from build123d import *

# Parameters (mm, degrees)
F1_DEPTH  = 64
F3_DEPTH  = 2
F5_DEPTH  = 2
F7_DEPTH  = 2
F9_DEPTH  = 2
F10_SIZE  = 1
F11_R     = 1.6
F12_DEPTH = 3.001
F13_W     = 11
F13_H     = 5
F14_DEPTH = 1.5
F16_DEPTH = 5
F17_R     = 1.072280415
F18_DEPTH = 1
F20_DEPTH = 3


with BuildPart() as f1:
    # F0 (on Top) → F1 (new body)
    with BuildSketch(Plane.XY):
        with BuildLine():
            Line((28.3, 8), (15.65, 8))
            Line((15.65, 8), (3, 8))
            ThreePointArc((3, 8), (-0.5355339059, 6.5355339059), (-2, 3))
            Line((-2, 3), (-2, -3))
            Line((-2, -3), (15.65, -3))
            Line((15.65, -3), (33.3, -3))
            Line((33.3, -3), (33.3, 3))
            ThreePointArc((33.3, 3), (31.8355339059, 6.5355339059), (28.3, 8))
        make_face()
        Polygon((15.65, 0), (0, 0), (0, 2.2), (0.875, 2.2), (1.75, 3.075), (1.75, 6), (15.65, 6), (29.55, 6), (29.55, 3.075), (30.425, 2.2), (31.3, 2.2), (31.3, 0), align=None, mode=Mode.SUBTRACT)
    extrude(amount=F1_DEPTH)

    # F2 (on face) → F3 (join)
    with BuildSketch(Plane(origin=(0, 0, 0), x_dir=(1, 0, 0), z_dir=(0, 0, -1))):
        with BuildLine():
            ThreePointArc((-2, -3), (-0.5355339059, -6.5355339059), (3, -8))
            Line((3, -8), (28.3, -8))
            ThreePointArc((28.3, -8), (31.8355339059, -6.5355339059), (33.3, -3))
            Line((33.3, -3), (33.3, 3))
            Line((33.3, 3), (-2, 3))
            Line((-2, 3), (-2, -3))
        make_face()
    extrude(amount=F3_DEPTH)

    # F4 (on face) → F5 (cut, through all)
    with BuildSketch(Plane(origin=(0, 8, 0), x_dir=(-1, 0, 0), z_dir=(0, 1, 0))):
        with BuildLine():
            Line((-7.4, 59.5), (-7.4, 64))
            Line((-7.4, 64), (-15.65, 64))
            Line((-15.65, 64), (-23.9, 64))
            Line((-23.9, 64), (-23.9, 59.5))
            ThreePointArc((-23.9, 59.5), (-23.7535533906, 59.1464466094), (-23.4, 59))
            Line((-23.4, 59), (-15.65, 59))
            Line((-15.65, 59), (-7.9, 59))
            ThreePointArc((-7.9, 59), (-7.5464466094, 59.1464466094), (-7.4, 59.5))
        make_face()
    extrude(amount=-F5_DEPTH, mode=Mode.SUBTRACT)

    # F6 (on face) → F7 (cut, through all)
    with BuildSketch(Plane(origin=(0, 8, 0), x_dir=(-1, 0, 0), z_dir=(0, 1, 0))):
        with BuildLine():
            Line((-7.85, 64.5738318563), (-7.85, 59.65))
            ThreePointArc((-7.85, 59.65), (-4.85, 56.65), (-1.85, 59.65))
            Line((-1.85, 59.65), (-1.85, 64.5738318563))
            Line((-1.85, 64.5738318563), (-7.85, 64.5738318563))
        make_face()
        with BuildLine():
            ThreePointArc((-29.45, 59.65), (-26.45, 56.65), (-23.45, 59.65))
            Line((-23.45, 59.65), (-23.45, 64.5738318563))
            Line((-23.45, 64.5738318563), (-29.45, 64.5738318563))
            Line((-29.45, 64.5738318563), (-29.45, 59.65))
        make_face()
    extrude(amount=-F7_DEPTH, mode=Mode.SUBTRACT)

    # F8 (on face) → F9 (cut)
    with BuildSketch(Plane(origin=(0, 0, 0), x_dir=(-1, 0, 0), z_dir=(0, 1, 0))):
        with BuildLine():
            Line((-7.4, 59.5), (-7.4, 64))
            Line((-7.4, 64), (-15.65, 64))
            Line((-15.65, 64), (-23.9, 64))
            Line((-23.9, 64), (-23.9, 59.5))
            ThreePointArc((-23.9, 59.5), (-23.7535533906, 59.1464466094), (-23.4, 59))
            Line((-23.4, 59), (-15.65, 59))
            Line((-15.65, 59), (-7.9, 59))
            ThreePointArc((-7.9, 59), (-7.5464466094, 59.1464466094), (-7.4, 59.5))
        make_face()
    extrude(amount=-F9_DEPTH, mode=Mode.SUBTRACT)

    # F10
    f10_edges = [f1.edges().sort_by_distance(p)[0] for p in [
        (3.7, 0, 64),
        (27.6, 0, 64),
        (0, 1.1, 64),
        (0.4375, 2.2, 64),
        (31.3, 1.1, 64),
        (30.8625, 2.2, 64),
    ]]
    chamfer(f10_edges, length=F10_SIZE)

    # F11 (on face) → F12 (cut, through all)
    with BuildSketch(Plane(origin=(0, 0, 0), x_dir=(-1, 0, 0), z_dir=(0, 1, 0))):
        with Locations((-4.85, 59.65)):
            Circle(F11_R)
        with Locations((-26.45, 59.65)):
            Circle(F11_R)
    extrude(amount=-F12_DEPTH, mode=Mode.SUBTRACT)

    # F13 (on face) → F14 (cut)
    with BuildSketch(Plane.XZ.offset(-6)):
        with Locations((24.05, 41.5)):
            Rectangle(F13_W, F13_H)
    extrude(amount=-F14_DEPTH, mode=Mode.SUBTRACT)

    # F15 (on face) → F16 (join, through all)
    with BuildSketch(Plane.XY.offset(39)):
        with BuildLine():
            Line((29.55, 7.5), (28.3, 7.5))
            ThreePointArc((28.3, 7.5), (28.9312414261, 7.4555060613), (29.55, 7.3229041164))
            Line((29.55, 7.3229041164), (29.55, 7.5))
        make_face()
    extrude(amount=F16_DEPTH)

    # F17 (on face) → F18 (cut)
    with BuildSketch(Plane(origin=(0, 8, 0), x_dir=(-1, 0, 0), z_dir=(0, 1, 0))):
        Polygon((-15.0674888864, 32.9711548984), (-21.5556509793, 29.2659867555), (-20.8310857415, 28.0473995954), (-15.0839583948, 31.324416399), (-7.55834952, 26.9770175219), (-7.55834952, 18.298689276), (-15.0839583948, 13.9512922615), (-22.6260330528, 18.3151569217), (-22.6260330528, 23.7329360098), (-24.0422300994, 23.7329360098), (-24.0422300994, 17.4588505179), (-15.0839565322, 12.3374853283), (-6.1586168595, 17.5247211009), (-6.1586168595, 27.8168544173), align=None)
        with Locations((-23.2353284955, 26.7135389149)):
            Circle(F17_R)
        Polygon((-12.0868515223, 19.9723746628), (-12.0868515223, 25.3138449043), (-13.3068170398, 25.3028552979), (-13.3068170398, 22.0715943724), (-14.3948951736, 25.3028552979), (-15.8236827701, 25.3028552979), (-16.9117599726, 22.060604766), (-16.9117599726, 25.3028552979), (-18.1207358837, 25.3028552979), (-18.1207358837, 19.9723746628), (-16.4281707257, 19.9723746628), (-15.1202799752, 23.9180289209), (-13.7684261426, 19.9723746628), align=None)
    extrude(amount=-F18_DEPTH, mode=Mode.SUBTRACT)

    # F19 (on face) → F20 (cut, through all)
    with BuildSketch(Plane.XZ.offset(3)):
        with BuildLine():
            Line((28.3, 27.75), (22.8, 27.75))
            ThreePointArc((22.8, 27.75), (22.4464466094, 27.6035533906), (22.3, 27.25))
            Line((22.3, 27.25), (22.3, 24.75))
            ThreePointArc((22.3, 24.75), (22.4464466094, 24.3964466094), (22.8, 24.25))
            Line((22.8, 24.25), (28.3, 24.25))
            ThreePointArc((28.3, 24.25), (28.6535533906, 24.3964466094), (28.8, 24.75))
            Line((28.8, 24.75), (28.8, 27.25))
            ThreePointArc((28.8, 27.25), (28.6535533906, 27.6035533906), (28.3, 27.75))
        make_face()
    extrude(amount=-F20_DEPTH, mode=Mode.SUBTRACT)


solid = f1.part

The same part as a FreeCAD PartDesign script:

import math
import FreeCAD as App
import Part
import Sketcher

V = App.Vector


def edges_at(feature, points):
    """Names of the edges that pass closest to the given points."""
    edges = feature.Shape.Edges
    near = lambda p: min(range(len(edges)), key=lambda i: edges[i].distToShape(Part.Vertex(*p))[0])
    return sorted({f"Edge{near(p) + 1}" for p in points})

doc = App.newDocument("Part")
body = doc.addObject("PartDesign::Body", "Body")

# Sketch on XY plane
sketch1 = body.newObject("Sketcher::SketchObject", "Sketch")
sketch1.AttachmentSupport = (doc.getObject("XY_Plane"), [""])
sketch1.MapMode = "FlatFace"
sketch1.addGeometry([
    Part.LineSegment(V(28.3, 8, 0), V(3, 8, 0)),  # 0
    Part.ArcOfCircle(Part.Circle(V(3, 3, 0), V(0, 0, 1), 5), math.radians(90), math.radians(180)),  # 1
    Part.LineSegment(V(-2, 3, 0), V(-2, -3, 0)),  # 2
    Part.LineSegment(V(-2, -3, 0), V(33.3, -3, 0)),  # 3
    Part.LineSegment(V(33.3, -3, 0), V(33.3, 3, 0)),  # 4
    Part.ArcOfCircle(Part.Circle(V(28.3, 3, 0), V(0, 0, 1), 5), math.radians(0), math.radians(90)),  # 5
    Part.LineSegment(V(31.3, 0, 0), V(0, 0, 0)),  # 6
    Part.LineSegment(V(0, 0, 0), V(0, 2.2, 0)),  # 7
    Part.LineSegment(V(0, 2.2, 0), V(0.9, 2.2, 0)),  # 8
    Part.LineSegment(V(0.9, 2.2, 0), V(1.8, 3.1, 0)),  # 9
    Part.LineSegment(V(1.8, 3.1, 0), V(1.8, 6, 0)),  # 10
    Part.LineSegment(V(1.8, 6, 0), V(29.6, 6, 0)),  # 11
    Part.LineSegment(V(29.6, 6, 0), V(29.6, 3.1, 0)),  # 12
    Part.LineSegment(V(29.6, 3.1, 0), V(30.4, 2.2, 0)),  # 13
    Part.LineSegment(V(30.4, 2.2, 0), V(31.3, 2.2, 0)),  # 14
    Part.LineSegment(V(31.3, 2.2, 0), V(31.3, 0, 0)),  # 15
], False)
sketch1.addConstraint([
    Sketcher.Constraint("Tangent", 0, 2, 1, 1),
    Sketcher.Constraint("Tangent", 1, 2, 2, 1),
    Sketcher.Constraint("Coincident", 2, 2, 3, 1),
    Sketcher.Constraint("Coincident", 3, 2, 4, 1),
    Sketcher.Constraint("Tangent", 4, 2, 5, 1),
    Sketcher.Constraint("Tangent", 5, 2, 0, 1),
    Sketcher.Constraint("Coincident", 6, 2, 7, 1),
    Sketcher.Constraint("Coincident", 7, 2, 8, 1),
    Sketcher.Constraint("Coincident", 8, 2, 9, 1),
    Sketcher.Constraint("Coincident", 9, 2, 10, 1),
    Sketcher.Constraint("Coincident", 10, 2, 11, 1),
    Sketcher.Constraint("Coincident", 11, 2, 12, 1),
    Sketcher.Constraint("Coincident", 12, 2, 13, 1),
    Sketcher.Constraint("Coincident", 13, 2, 14, 1),
    Sketcher.Constraint("Coincident", 14, 2, 15, 1),
    Sketcher.Constraint("Coincident", 15, 2, 6, 1),
    Sketcher.Constraint("Horizontal", 0),
    Sketcher.Constraint("Vertical", 2),
    Sketcher.Constraint("Horizontal", 3),
    Sketcher.Constraint("Vertical", 4),
    Sketcher.Constraint("Horizontal", 6),
    Sketcher.Constraint("Vertical", 7),
    Sketcher.Constraint("Horizontal", 8),
    Sketcher.Constraint("Vertical", 10),
    Sketcher.Constraint("Horizontal", 11),
    Sketcher.Constraint("Vertical", 12),
    Sketcher.Constraint("Horizontal", 14),
    Sketcher.Constraint("Vertical", 15),
    Sketcher.Constraint("Coincident", 6, 2, -1, 1),
    Sketcher.Constraint("Equal", 1, 5),
    Sketcher.Constraint("Perpendicular", 9, 13),
    Sketcher.Constraint("Horizontal", 9, 2, 12, 2),
    Sketcher.Constraint("Horizontal", 8, 2, 13, 2),
    Sketcher.Constraint("Equal", 8, 14),
    Sketcher.Constraint("Equal", 9, 13),
    Sketcher.Constraint("Radius", 1, 5.0),
    Sketcher.Constraint("DistanceY", 2, 2, 2, 1, 6.0),
    Sketcher.Constraint("DistanceX", 0, 2, 0, 1, 25.3),
    Sketcher.Constraint("DistanceX", 6, 2, 6, 1, 31.3),
    Sketcher.Constraint("DistanceX", 11, 1, 11, 2, 27.8),
    Sketcher.Constraint("DistanceY", 7, 1, 7, 2, 2.2),
    Sketcher.Constraint("DistanceX", -1, 1, 1, 3, 3.0),
    Sketcher.Constraint("DistanceY", -1, 1, 1, 3, 3.0),
    Sketcher.Constraint("DistanceY", -1, 1, 10, 2, 6.0),
    Sketcher.Constraint("DistanceX", 8, 1, 8, 2, 0.875),
])
pad1 = body.newObject("PartDesign::Pad", "Pad")
pad1.Profile = sketch1
pad1.Length = 64

# Sketch on XY plane
sketch2 = body.newObject("Sketcher::SketchObject", "Sketch001")
sketch2.AttachmentSupport = (doc.getObject("XY_Plane"), [""])
sketch2.MapMode = "FlatFace"
sketch2.addGeometry([
    Part.ArcOfCircle(Part.Circle(V(3, 3, 0), V(0, 0, 1), 5), math.radians(90), math.radians(180)),  # 0
    Part.LineSegment(V(3, 8, 0), V(28, 8, 0)),  # 1
    Part.ArcOfCircle(Part.Circle(V(28, 3, 0), V(0, 0, 1), 5), math.radians(0), math.radians(90)),  # 2
    Part.LineSegment(V(33, 3, 0), V(33, -3, 0)),  # 3
    Part.LineSegment(V(33, -3, 0), V(-2, -3, 0)),  # 4
    Part.LineSegment(V(-2, -3, 0), V(-2, 3, 0)),  # 5
], False)
sketch2.addConstraint([
    Sketcher.Constraint("Tangent", 0, 1, 1, 1),
    Sketcher.Constraint("Tangent", 1, 2, 2, 2),
    Sketcher.Constraint("Tangent", 2, 1, 3, 1),
    Sketcher.Constraint("Coincident", 3, 2, 4, 1),
    Sketcher.Constraint("Coincident", 4, 2, 5, 1),
    Sketcher.Constraint("Tangent", 5, 2, 0, 2),
    Sketcher.Constraint("Horizontal", 1),
    Sketcher.Constraint("Vertical", 3),
    Sketcher.Constraint("Horizontal", 4),
    Sketcher.Constraint("Vertical", 5),
    Sketcher.Constraint("Equal", 0, 2),
    Sketcher.Constraint("Radius", 0, 5.0),
    Sketcher.Constraint("DistanceY", 3, 2, 3, 1, 6.0),
    Sketcher.Constraint("DistanceX", 1, 1, 1, 2, 25.3),
    Sketcher.Constraint("DistanceX", -1, 1, 0, 3, 3.0),
    Sketcher.Constraint("DistanceY", -1, 1, 0, 3, 3.0),
])
pad2 = body.newObject("PartDesign::Pad", "Pad001")
pad2.Profile = sketch2
pad2.Length = 2
pad2.Reversed = True

# Sketch on XZ plane
sketch3 = body.newObject("Sketcher::SketchObject", "Sketch002")
sketch3.AttachmentSupport = (doc.getObject("XZ_Plane"), [""])
sketch3.MapMode = "FlatFace"
sketch3.AttachmentOffset = App.Placement(V(0, 0, -8), App.Rotation())
sketch3.addGeometry([
    Part.LineSegment(V(7.4, 59.5, 0), V(7.4, 64, 0)),  # 0
    Part.LineSegment(V(7.4, 64, 0), V(23.9, 64, 0)),  # 1
    Part.LineSegment(V(23.9, 64, 0), V(23.9, 59.5, 0)),  # 2
    Part.ArcOfCircle(Part.Circle(V(23.4, 59.5, 0), V(0, 0, 1), 0.5), math.radians(-90), math.radians(0)),  # 3
    Part.LineSegment(V(23.4, 59, 0), V(7.9, 59, 0)),  # 4
    Part.ArcOfCircle(Part.Circle(V(7.9, 59.5, 0), V(0, 0, 1), 0.5), math.radians(180), math.radians(270)),  # 5
], False)
sketch3.addConstraint([
    Sketcher.Constraint("Coincident", 0, 2, 1, 1),
    Sketcher.Constraint("Coincident", 1, 2, 2, 1),
    Sketcher.Constraint("Tangent", 2, 2, 3, 2),
    Sketcher.Constraint("Tangent", 3, 1, 4, 1),
    Sketcher.Constraint("Tangent", 4, 2, 5, 2),
    Sketcher.Constraint("Tangent", 5, 1, 0, 1),
    Sketcher.Constraint("Vertical", 0),
    Sketcher.Constraint("Horizontal", 1),
    Sketcher.Constraint("Vertical", 2),
    Sketcher.Constraint("Horizontal", 4),
    Sketcher.Constraint("Equal", 3, 5),
    Sketcher.Constraint("Radius", 3, 0.5),
    Sketcher.Constraint("DistanceX", 1, 1, 1, 2, 16.5),
    Sketcher.Constraint("DistanceY", 0, 1, 0, 2, 4.5),
    Sketcher.Constraint("DistanceY", -1, 1, 0, 2, 64.0),
    Sketcher.Constraint("DistanceX", -1, 1, 3, 3, 23.4),
])
pocket1 = body.newObject("PartDesign::Pocket", "Pocket")
pocket1.Profile = sketch3
pocket1.Length = 2
pocket1.Reversed = True

# Sketch on XZ plane
sketch4 = body.newObject("Sketcher::SketchObject", "Sketch003")
sketch4.AttachmentSupport = (doc.getObject("XZ_Plane"), [""])
sketch4.MapMode = "FlatFace"
sketch4.AttachmentOffset = App.Placement(V(0, 0, -8), App.Rotation())
sketch4.addGeometry([
    Part.LineSegment(V(7.8, 64.6, 0), V(7.8, 59.6, 0)),  # 0
    Part.ArcOfCircle(Part.Circle(V(4.8, 59.6, 0), V(0, 0, 1), 3), math.radians(180), math.radians(360)),  # 1
    Part.LineSegment(V(1.9, 59.6, 0), V(1.9, 64.6, 0)),  # 2
    Part.LineSegment(V(1.9, 64.6, 0), V(7.8, 64.6, 0)),  # 3
    Part.ArcOfCircle(Part.Circle(V(26.4, 59.6, 0), V(0, 0, 1), 3), math.radians(180), math.radians(360)),  # 4
    Part.LineSegment(V(23.4, 59.6, 0), V(23.4, 64.6, 0)),  # 5
    Part.LineSegment(V(23.4, 64.6, 0), V(29.4, 64.6, 0)),  # 6
    Part.LineSegment(V(29.4, 64.6, 0), V(29.4, 59.6, 0)),  # 7
], False)
sketch4.addConstraint([
    Sketcher.Constraint("Tangent", 0, 2, 1, 2),
    Sketcher.Constraint("Tangent", 1, 1, 2, 1),
    Sketcher.Constraint("Coincident", 2, 2, 3, 1),
    Sketcher.Constraint("Coincident", 3, 2, 0, 1),
    Sketcher.Constraint("Tangent", 4, 1, 5, 1),
    Sketcher.Constraint("Coincident", 5, 2, 6, 1),
    Sketcher.Constraint("Coincident", 6, 2, 7, 1),
    Sketcher.Constraint("Tangent", 7, 2, 4, 2),
    Sketcher.Constraint("Vertical", 0),
    Sketcher.Constraint("Vertical", 2),
    Sketcher.Constraint("Horizontal", 3),
    Sketcher.Constraint("Vertical", 5),
    Sketcher.Constraint("Horizontal", 6),
    Sketcher.Constraint("Vertical", 7),
    Sketcher.Constraint("Equal", 1, 4),
    Sketcher.Constraint("Horizontal", 1, 3, 4, 3),
    Sketcher.Constraint("Horizontal", 3, 2, 5, 2),
    Sketcher.Constraint("Radius", 1, 3.0),
    Sketcher.Constraint("DistanceX", 1, 3, 4, 3, 21.6),
    Sketcher.Constraint("DistanceX", -1, 1, 1, 3, 4.85),
    Sketcher.Constraint("DistanceY", -1, 1, 1, 3, 59.65),
    Sketcher.Constraint("DistanceY", 0, 2, 0, 1, 4.923832),
])
pocket2 = body.newObject("PartDesign::Pocket", "Pocket001")
pocket2.Profile = sketch4
pocket2.Length = 2
pocket2.Reversed = True

# Sketch on XZ plane
sketch5 = body.newObject("Sketcher::SketchObject", "Sketch004")
sketch5.AttachmentSupport = (doc.getObject("XZ_Plane"), [""])
sketch5.MapMode = "FlatFace"
sketch5.addGeometry([
    Part.LineSegment(V(7.4, 59.5, 0), V(7.4, 64, 0)),  # 0
    Part.LineSegment(V(7.4, 64, 0), V(23.9, 64, 0)),  # 1
    Part.LineSegment(V(23.9, 64, 0), V(23.9, 59.5, 0)),  # 2
    Part.ArcOfCircle(Part.Circle(V(23.4, 59.5, 0), V(0, 0, 1), 0.5), math.radians(-90), math.radians(0)),  # 3
    Part.LineSegment(V(23.4, 59, 0), V(7.9, 59, 0)),  # 4
    Part.ArcOfCircle(Part.Circle(V(7.9, 59.5, 0), V(0, 0, 1), 0.5), math.radians(180), math.radians(270)),  # 5
], False)
sketch5.addConstraint([
    Sketcher.Constraint("Coincident", 0, 2, 1, 1),
    Sketcher.Constraint("Coincident", 1, 2, 2, 1),
    Sketcher.Constraint("Tangent", 2, 2, 3, 2),
    Sketcher.Constraint("Tangent", 3, 1, 4, 1),
    Sketcher.Constraint("Tangent", 4, 2, 5, 2),
    Sketcher.Constraint("Tangent", 5, 1, 0, 1),
    Sketcher.Constraint("Vertical", 0),
    Sketcher.Constraint("Horizontal", 1),
    Sketcher.Constraint("Vertical", 2),
    Sketcher.Constraint("Horizontal", 4),
    Sketcher.Constraint("Equal", 3, 5),
    Sketcher.Constraint("Radius", 3, 0.5),
    Sketcher.Constraint("DistanceX", 1, 1, 1, 2, 16.5),
    Sketcher.Constraint("DistanceY", 0, 1, 0, 2, 4.5),
    Sketcher.Constraint("DistanceY", -1, 1, 0, 2, 64.0),
    Sketcher.Constraint("DistanceX", -1, 1, 3, 3, 23.4),
])
pocket3 = body.newObject("PartDesign::Pocket", "Pocket002")
pocket3.Profile = sketch5
pocket3.Length = 2
pocket3.Reversed = True
doc.recompute()

chamfer = body.newObject("PartDesign::Chamfer", "Chamfer")
chamfer.Base = (pocket3, edges_at(pocket3, [
    (3.7, 0, 64),
    (27.6, 0, 64),
    (0, 1.1, 64),
    (0.438, 2.2, 64),
    (31.3, 1.1, 64),
    (30.863, 2.2, 64),
]))
chamfer.Size = 1

# Sketch on XZ plane
sketch6 = body.newObject("Sketcher::SketchObject", "Sketch005")
sketch6.AttachmentSupport = (doc.getObject("XZ_Plane"), [""])
sketch6.MapMode = "FlatFace"
sketch6.addGeometry([
    Part.Circle(V(4.8, 59.6, 0), V(0, 0, 1), 1.6),
    Part.Circle(V(26.4, 59.6, 0), V(0, 0, 1), 1.6),
], False)
sketch6.addConstraint([
    Sketcher.Constraint("Equal", 0, 1),
    Sketcher.Constraint("Horizontal", 0, 3, 1, 3),
    Sketcher.Constraint("Diameter", 0, 3.2),
    Sketcher.Constraint("DistanceX", 0, 3, 1, 3, 21.6),
    Sketcher.Constraint("DistanceX", -1, 1, 0, 3, 4.85),
    Sketcher.Constraint("DistanceY", -1, 1, 0, 3, 59.65),
])
pocket4 = body.newObject("PartDesign::Pocket", "Pocket003")
pocket4.Profile = sketch6
pocket4.Type = "ThroughAll"
pocket4.Reversed = True

# Sketch on XZ plane
sketch7 = body.newObject("Sketcher::SketchObject", "Sketch006")
sketch7.AttachmentSupport = (doc.getObject("XZ_Plane"), [""])
sketch7.MapMode = "FlatFace"
sketch7.AttachmentOffset = App.Placement(V(0, 0, -6), App.Rotation())
sketch7.addGeometry([
    Part.LineSegment(V(19, 44, 0), V(19, 39, 0)),
    Part.LineSegment(V(19, 39, 0), V(30, 39, 0)),
    Part.LineSegment(V(30, 39, 0), V(30, 44, 0)),
    Part.LineSegment(V(30, 44, 0), V(19, 44, 0)),
], False)
sketch7.addConstraint([
    Sketcher.Constraint("Coincident", 0, 2, 1, 1),
    Sketcher.Constraint("Coincident", 1, 2, 2, 1),
    Sketcher.Constraint("Coincident", 2, 2, 3, 1),
    Sketcher.Constraint("Coincident", 3, 2, 0, 1),
    Sketcher.Constraint("Vertical", 0),
    Sketcher.Constraint("Horizontal", 1),
    Sketcher.Constraint("Vertical", 2),
    Sketcher.Constraint("Horizontal", 3),
    Sketcher.Constraint("DistanceX", 1, 1, 1, 2, 11.0),
    Sketcher.Constraint("DistanceY", 0, 2, 0, 1, 5.0),
    Sketcher.Constraint("DistanceY", -1, 1, 0, 2, 39.0),
    Sketcher.Constraint("DistanceX", -1, 1, 0, 2, 18.55),
])
pocket5 = body.newObject("PartDesign::Pocket", "Pocket004")
pocket5.Profile = sketch7
pocket5.Length = 1.5

# Sketch on XY plane
sketch8 = body.newObject("Sketcher::SketchObject", "Sketch007")
sketch8.AttachmentSupport = (doc.getObject("XY_Plane"), [""])
sketch8.MapMode = "FlatFace"
sketch8.AttachmentOffset = App.Placement(V(0, 0, 39), App.Rotation())
sketch8.addGeometry([
    Part.LineSegment(V(29.55, 7.5, 0), V(28.3, 7.5, 0)),
    Part.ArcOfCircle(Part.Circle(V(28.3, 3, 0), V(0, 0, 1), 4.5), math.radians(73.87), math.radians(90)),
    Part.LineSegment(V(29.55, 7.32, 0), V(29.55, 7.5, 0)),
], False)
sketch8.addConstraint([
    Sketcher.Constraint("Tangent", 0, 2, 1, 2),
    Sketcher.Constraint("Coincident", 1, 1, 2, 1),
    Sketcher.Constraint("Coincident", 2, 2, 0, 1),
    Sketcher.Constraint("Horizontal", 0),
    Sketcher.Constraint("Vertical", 2),
    Sketcher.Constraint("Radius", 1, 4.5),
    Sketcher.Constraint("DistanceY", -1, 1, 1, 3, 3.0),
    Sketcher.Constraint("DistanceX", 0, 2, 0, 1, 1.25),
    Sketcher.Constraint("DistanceX", -1, 1, 1, 3, 28.3),
])
pad3 = body.newObject("PartDesign::Pad", "Pad002")
pad3.Profile = sketch8
pad3.Type = "UpToLast"

# Sketch on XZ plane
sketch9 = body.newObject("Sketcher::SketchObject", "Sketch008")
sketch9.AttachmentSupport = (doc.getObject("XZ_Plane"), [""])
sketch9.MapMode = "FlatFace"
sketch9.AttachmentOffset = App.Placement(V(0, 0, -8), App.Rotation())
sketch9.addGeometry([
    Part.LineSegment(V(15.1, 33, 0), V(21.6, 29.3, 0)),  # 0
    Part.LineSegment(V(21.6, 29.3, 0), V(20.8, 28, 0)),  # 1
    Part.LineSegment(V(20.8, 28, 0), V(15.1, 31.3, 0)),  # 2
    Part.LineSegment(V(15.1, 31.3, 0), V(7.6, 27, 0)),  # 3
    Part.LineSegment(V(7.6, 27, 0), V(7.6, 18.3, 0)),  # 4
    Part.LineSegment(V(7.6, 18.3, 0), V(15.1, 14, 0)),  # 5
    Part.LineSegment(V(15.1, 14, 0), V(22.6, 18.3, 0)),  # 6
    Part.LineSegment(V(22.6, 18.3, 0), V(22.6, 23.7, 0)),  # 7
    Part.LineSegment(V(22.6, 23.7, 0), V(24, 23.7, 0)),  # 8
    Part.LineSegment(V(24, 23.7, 0), V(24, 17.5, 0)),  # 9
    Part.LineSegment(V(24, 17.5, 0), V(15.1, 12.3, 0)),  # 10
    Part.LineSegment(V(15.1, 12.3, 0), V(6.2, 17.5, 0)),  # 11
    Part.LineSegment(V(6.2, 17.5, 0), V(6.2, 27.8, 0)),  # 12
    Part.LineSegment(V(6.2, 27.8, 0), V(15.1, 33, 0)),  # 13
    Part.Circle(V(23.2, 26.7, 0), V(0, 0, 1), 1.1),  # 14
    Part.LineSegment(V(12.1, 20, 0), V(12.1, 25.3, 0)),  # 15
    Part.LineSegment(V(12.1, 25.3, 0), V(13.3, 25.3, 0)),  # 16
    Part.LineSegment(V(13.3, 25.3, 0), V(13.3, 22.1, 0)),  # 17
    Part.LineSegment(V(13.3, 22.1, 0), V(14.4, 25.3, 0)),  # 18
    Part.LineSegment(V(14.4, 25.3, 0), V(15.8, 25.3, 0)),  # 19
    Part.LineSegment(V(15.8, 25.3, 0), V(16.9, 22.1, 0)),  # 20
    Part.LineSegment(V(16.9, 22.1, 0), V(16.9, 25.3, 0)),  # 21
    Part.LineSegment(V(16.9, 25.3, 0), V(18.1, 25.3, 0)),  # 22
    Part.LineSegment(V(18.1, 25.3, 0), V(18.1, 20, 0)),  # 23
    Part.LineSegment(V(18.1, 20, 0), V(16.4, 20, 0)),  # 24
    Part.LineSegment(V(16.4, 20, 0), V(15.1, 23.9, 0)),  # 25
    Part.LineSegment(V(15.1, 23.9, 0), V(13.8, 20, 0)),  # 26
    Part.LineSegment(V(13.8, 20, 0), V(12.1, 20, 0)),  # 27
], False)
sketch9.addConstraint([
    Sketcher.Constraint("Coincident", 0, 2, 1, 1),
    Sketcher.Constraint("Coincident", 1, 2, 2, 1),
    Sketcher.Constraint("Coincident", 2, 2, 3, 1),
    Sketcher.Constraint("Coincident", 3, 2, 4, 1),
    Sketcher.Constraint("Coincident", 4, 2, 5, 1),
    Sketcher.Constraint("Coincident", 5, 2, 6, 1),
    Sketcher.Constraint("Coincident", 6, 2, 7, 1),
    Sketcher.Constraint("Coincident", 7, 2, 8, 1),
    Sketcher.Constraint("Coincident", 8, 2, 9, 1),
    Sketcher.Constraint("Coincident", 9, 2, 10, 1),
    Sketcher.Constraint("Coincident", 10, 2, 11, 1),
    Sketcher.Constraint("Coincident", 11, 2, 12, 1),
    Sketcher.Constraint("Coincident", 12, 2, 13, 1),
    Sketcher.Constraint("Coincident", 13, 2, 0, 1),
    Sketcher.Constraint("Coincident", 15, 2, 16, 1),
    Sketcher.Constraint("Coincident", 16, 2, 17, 1),
    Sketcher.Constraint("Coincident", 17, 2, 18, 1),
    Sketcher.Constraint("Coincident", 18, 2, 19, 1),
    Sketcher.Constraint("Coincident", 19, 2, 20, 1),
    Sketcher.Constraint("Coincident", 20, 2, 21, 1),
    Sketcher.Constraint("Coincident", 21, 2, 22, 1),
    Sketcher.Constraint("Coincident", 22, 2, 23, 1),
    Sketcher.Constraint("Coincident", 23, 2, 24, 1),
    Sketcher.Constraint("Coincident", 24, 2, 25, 1),
    Sketcher.Constraint("Coincident", 25, 2, 26, 1),
    Sketcher.Constraint("Coincident", 26, 2, 27, 1),
    Sketcher.Constraint("Coincident", 27, 2, 15, 1),
    Sketcher.Constraint("Vertical", 4),
    Sketcher.Constraint("Vertical", 7),
    Sketcher.Constraint("Horizontal", 8),
    Sketcher.Constraint("Vertical", 9),
    Sketcher.Constraint("Vertical", 12),
    Sketcher.Constraint("Vertical", 15),
    Sketcher.Constraint("Vertical", 17),
    Sketcher.Constraint("Horizontal", 19),
    Sketcher.Constraint("Vertical", 21),
    Sketcher.Constraint("Horizontal", 22),
    Sketcher.Constraint("Vertical", 23),
    Sketcher.Constraint("Horizontal", 24),
    Sketcher.Constraint("Horizontal", 27),
    Sketcher.Constraint("Horizontal", 16, 2, 18, 2),
    Sketcher.Constraint("Horizontal", 19, 2, 21, 2),
    Sketcher.Constraint("Horizontal", 24, 2, 26, 2),
    Sketcher.Constraint("Vertical", 2, 2, 5, 2),
    Sketcher.Constraint("Vertical", 5, 2, 10, 2),
    Sketcher.Constraint("Equal", 3, 5),
    Sketcher.Constraint("Diameter", 14, 2.144561),
    Sketcher.Constraint("DistanceY", 16, 2, 12, 2, 2.513999),
    Sketcher.Constraint("DistanceY", 4, 2, 4, 1, 8.678328),
    Sketcher.Constraint("DistanceY", 7, 1, 7, 2, 5.417779),
    Sketcher.Constraint("DistanceY", 15, 1, 15, 2, 5.34147),
    Sketcher.Constraint("DistanceY", 17, 2, 17, 1, 3.231261),
    Sketcher.Constraint("DistanceY", 21, 1, 21, 2, 3.242251),
    Sketcher.Constraint("DistanceY", 23, 2, 23, 1, 5.330481),
    Sketcher.Constraint("DistanceY", -1, 1, 1, 2, 28.0474),
    Sketcher.Constraint("DistanceY", 3, 2, 2, 2, 4.347399),
    Sketcher.Constraint("DistanceX", 3, 2, 0, 2, 13.997301),
    Sketcher.Constraint("DistanceX", 14, 3, 8, 2, 0.806902),
    Sketcher.Constraint("DistanceX", 12, 2, 16, 2, 7.1482),
    Sketcher.Constraint("DistanceY", 16, 2, 13, 2, 7.6683),
    Sketcher.Constraint("Distance", 0, 7.471581),
    Sketcher.Constraint("Distance", 3, 8.691068),
    Sketcher.Constraint("Distance", 10, 10.318868),
    Sketcher.Constraint("Distance", 11, 10.323231),
    Sketcher.Constraint("Distance", 18, 3.40954),
    Sketcher.Constraint("DistanceX", 8, 1, 8, 2, 1.416197),
    Sketcher.Constraint("DistanceX", 19, 1, 19, 2, 1.428788),
    Sketcher.Constraint("DistanceX", 22, 1, 22, 2, 1.208976),
    Sketcher.Constraint("DistanceX", 24, 2, 24, 1, 1.692565),
    Sketcher.Constraint("DistanceX", 27, 2, 27, 1, 1.681575),
    Sketcher.Constraint("DistanceY", 9, 2, 9, 1, 6.274085),
    Sketcher.Constraint("DistanceY", 12, 1, 12, 2, 10.292133),
    Sketcher.Constraint("DistanceX", -1, 1, 14, 3, 23.235328),
    Sketcher.Constraint("DistanceY", -1, 1, 14, 3, 26.713539),
    Sketcher.Constraint("DistanceX", -1, 1, 0, 2, 21.555651),
    Sketcher.Constraint("DistanceY", -1, 1, 4, 2, 18.298689),
    Sketcher.Constraint("DistanceY", -1, 1, 9, 2, 17.458851),
    Sketcher.Constraint("DistanceY", -1, 1, 11, 2, 17.524721),
    Sketcher.Constraint("DistanceX", -1, 1, 13, 2, 15.067489),
    Sketcher.Constraint("DistanceX", -1, 1, 15, 2, 12.086852),
    Sketcher.Constraint("DistanceX", -1, 1, 20, 2, 16.91176),
    Sketcher.Constraint("DistanceX", -1, 1, 25, 2, 15.12028),
    Sketcher.Constraint("DistanceY", -1, 1, 25, 2, 23.918029),
    Sketcher.Constraint("DistanceX", 12, 2, 1, 2, 14.672469),
])
pocket6 = body.newObject("PartDesign::Pocket", "Pocket005")
pocket6.Profile = sketch9
pocket6.Length = 1
pocket6.Reversed = True

# Sketch on XZ plane
sketch10 = body.newObject("Sketcher::SketchObject", "Sketch009")
sketch10.AttachmentSupport = (doc.getObject("XZ_Plane"), [""])
sketch10.MapMode = "FlatFace"
sketch10.AttachmentOffset = App.Placement(V(0, 0, 3), App.Rotation())
sketch10.addGeometry([
    Part.LineSegment(V(28.3, 27.8, 0), V(22.8, 27.8, 0)),  # 0
    Part.ArcOfCircle(Part.Circle(V(22.8, 27.2, 0), V(0, 0, 1), 0.5), math.radians(90), math.radians(180)),  # 1
    Part.LineSegment(V(22.3, 27.2, 0), V(22.3, 24.8, 0)),  # 2
    Part.ArcOfCircle(Part.Circle(V(22.8, 24.8, 0), V(0, 0, 1), 0.5), math.radians(180), math.radians(270)),  # 3
    Part.LineSegment(V(22.8, 24.2, 0), V(28.3, 24.2, 0)),  # 4
    Part.ArcOfCircle(Part.Circle(V(28.3, 24.8, 0), V(0, 0, 1), 0.5), math.radians(-90), math.radians(0)),  # 5
    Part.LineSegment(V(28.8, 24.8, 0), V(28.8, 27.2, 0)),  # 6
    Part.ArcOfCircle(Part.Circle(V(28.3, 27.2, 0), V(0, 0, 1), 0.5), math.radians(0), math.radians(90)),  # 7
], False)
sketch10.addConstraint([
    Sketcher.Constraint("Tangent", 0, 2, 1, 1),
    Sketcher.Constraint("Tangent", 1, 2, 2, 1),
    Sketcher.Constraint("Tangent", 2, 2, 3, 1),
    Sketcher.Constraint("Tangent", 3, 2, 4, 1),
    Sketcher.Constraint("Tangent", 4, 2, 5, 1),
    Sketcher.Constraint("Tangent", 5, 2, 6, 1),
    Sketcher.Constraint("Tangent", 6, 2, 7, 1),
    Sketcher.Constraint("Tangent", 7, 2, 0, 1),
    Sketcher.Constraint("Horizontal", 0),
    Sketcher.Constraint("Vertical", 2),
    Sketcher.Constraint("Horizontal", 4),
    Sketcher.Constraint("Vertical", 6),
    Sketcher.Constraint("Equal", 1, 3),
    Sketcher.Constraint("Equal", 3, 5),
    Sketcher.Constraint("Equal", 5, 7),
    Sketcher.Constraint("Radius", 1, 0.5),
    Sketcher.Constraint("DistanceX", 0, 2, 0, 1, 5.5),
    Sketcher.Constraint("DistanceY", 2, 2, 2, 1, 2.5),
    Sketcher.Constraint("DistanceX", -1, 1, 1, 3, 22.8),
    Sketcher.Constraint("DistanceY", -1, 1, 1, 3, 27.25),
])
pocket7 = body.newObject("PartDesign::Pocket", "Pocket006")
pocket7.Profile = sketch10
pocket7.Length = 3

doc.recompute()
